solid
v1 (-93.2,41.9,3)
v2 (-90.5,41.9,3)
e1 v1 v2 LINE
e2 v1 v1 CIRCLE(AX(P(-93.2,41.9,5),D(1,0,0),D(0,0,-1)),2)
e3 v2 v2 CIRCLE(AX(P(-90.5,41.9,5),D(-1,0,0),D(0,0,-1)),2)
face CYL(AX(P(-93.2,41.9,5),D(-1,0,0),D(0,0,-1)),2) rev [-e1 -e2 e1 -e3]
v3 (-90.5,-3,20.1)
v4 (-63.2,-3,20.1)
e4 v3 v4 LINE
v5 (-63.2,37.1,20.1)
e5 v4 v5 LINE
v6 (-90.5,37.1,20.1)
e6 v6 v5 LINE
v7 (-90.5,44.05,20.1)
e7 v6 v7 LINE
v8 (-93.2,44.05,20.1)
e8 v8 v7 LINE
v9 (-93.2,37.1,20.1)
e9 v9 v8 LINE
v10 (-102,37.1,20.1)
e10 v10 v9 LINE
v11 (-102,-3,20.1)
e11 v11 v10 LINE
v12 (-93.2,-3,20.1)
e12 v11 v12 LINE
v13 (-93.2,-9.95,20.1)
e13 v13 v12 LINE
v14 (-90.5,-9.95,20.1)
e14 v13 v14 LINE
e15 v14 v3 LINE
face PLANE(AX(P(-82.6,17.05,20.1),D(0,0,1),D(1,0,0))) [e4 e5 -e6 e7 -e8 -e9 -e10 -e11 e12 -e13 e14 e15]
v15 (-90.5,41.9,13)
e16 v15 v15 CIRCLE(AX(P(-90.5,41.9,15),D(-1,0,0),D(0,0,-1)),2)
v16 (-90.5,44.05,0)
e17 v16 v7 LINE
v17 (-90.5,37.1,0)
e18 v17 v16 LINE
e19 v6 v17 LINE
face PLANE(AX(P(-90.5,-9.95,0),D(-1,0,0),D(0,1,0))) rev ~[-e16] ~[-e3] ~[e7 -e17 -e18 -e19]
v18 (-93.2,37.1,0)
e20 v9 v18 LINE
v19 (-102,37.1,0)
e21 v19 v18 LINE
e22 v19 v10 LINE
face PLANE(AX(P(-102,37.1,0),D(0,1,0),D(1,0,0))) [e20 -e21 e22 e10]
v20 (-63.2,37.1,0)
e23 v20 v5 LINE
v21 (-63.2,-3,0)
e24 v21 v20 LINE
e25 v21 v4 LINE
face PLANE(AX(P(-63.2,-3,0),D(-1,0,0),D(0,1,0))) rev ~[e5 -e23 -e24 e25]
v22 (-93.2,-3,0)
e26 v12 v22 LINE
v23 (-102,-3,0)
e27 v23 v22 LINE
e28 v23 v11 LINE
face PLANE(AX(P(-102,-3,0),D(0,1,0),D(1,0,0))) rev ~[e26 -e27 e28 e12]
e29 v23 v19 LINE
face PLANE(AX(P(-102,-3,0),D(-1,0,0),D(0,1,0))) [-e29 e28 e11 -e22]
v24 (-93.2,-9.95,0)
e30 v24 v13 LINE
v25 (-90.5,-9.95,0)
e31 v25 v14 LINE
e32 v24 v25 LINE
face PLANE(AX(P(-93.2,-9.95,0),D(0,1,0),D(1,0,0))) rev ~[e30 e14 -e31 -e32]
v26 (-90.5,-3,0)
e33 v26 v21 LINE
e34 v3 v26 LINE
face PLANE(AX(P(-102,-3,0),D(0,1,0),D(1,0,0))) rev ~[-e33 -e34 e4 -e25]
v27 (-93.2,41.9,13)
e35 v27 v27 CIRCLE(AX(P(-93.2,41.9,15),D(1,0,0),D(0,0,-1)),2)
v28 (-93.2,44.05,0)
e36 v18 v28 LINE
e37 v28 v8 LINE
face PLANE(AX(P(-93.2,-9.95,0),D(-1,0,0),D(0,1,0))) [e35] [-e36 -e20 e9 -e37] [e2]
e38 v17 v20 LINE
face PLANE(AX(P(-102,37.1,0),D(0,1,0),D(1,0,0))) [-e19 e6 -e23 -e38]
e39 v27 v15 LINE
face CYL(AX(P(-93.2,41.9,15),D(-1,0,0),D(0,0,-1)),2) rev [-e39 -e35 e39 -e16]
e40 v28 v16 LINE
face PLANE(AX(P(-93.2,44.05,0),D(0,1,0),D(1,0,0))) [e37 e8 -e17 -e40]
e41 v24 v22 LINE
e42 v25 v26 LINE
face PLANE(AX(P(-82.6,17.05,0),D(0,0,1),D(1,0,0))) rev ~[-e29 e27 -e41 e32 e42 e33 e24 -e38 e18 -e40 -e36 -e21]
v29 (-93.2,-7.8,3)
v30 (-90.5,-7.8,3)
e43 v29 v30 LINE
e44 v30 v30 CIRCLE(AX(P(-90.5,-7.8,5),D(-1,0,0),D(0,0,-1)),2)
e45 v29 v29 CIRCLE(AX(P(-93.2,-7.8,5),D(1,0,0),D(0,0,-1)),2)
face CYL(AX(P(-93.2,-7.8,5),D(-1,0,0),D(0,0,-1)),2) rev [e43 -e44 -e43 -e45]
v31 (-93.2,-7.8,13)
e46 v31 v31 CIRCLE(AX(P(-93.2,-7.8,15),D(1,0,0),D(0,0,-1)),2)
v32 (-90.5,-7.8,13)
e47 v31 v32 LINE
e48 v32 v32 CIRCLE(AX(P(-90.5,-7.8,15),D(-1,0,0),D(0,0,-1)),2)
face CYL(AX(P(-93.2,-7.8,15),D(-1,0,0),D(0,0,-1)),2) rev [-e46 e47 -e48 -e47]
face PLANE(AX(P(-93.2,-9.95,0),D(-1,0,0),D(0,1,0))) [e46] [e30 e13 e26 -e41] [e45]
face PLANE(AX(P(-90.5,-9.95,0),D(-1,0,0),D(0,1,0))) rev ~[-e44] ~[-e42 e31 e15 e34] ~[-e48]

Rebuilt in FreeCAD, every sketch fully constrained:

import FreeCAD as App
import Part
import Sketcher

V = App.Vector
Q = App.Units.Quantity


def add_polygon(sketch, points):
    """Adds a closed chain of lines whose ends are joined by coincident constraints."""
    first, n = sketch.GeometryCount, len(points)
    for a, b in zip(points, points[1:] + points[:1]):
        sketch.addGeometry(Part.LineSegment(App.Vector(*a, 0), App.Vector(*b, 0)), False)
    for i in range(n):
        sketch.addConstraint(Sketcher.Constraint("Coincident", first + i, 2, first + (i + 1) % n, 1))

doc = App.newDocument("Part")
params = doc.addObject("Spreadsheet::Sheet", "Params")
for row, (alias, value) in enumerate([
    ("sketch1_diameter", "4 mm"),
    ("pad1_length", "20 mm"),
    ("sketch2_diameter", "4 mm"),
    ("pad2_length", "20 mm"),
    ("sketch3_diameter", "4 mm"),
    ("pad3_length", "20 mm"),
    ("sketch4_diameter", "4 mm"),
    ("pad4_length", "20 mm"),
    ("sketch5_width", "38.8 mm"),
    ("sketch5_height", "40.1 mm"),
    ("pad5_length", "20.1 mm"),
    ("sketch6_height", "54 mm"),
    ("sketch6_width", "2.7 mm"),
    ("pad6_length", "20.1 mm"),
], start=1):
    params.set(f"A{row}", alias)
    params.set(f"B{row}", "=" + value)
    params.setAlias(f"B{row}", alias)

body = doc.addObject("PartDesign::Body", "Body")

# Sketch on YZ plane
sketch1 = body.newObject("Sketcher::SketchObject", "Sketch")
sketch1.AttachmentSupport = (doc.getObject("YZ_Plane"), [""])
sketch1.MapMode = "FlatFace"
sketch1.AttachmentOffset = App.Placement(V(0, 0, -97.2), App.Rotation())
sketch1.addGeometry(Part.Circle(V(2.2, 5, 0), V(0, 0, 1), 2), False)
sketch1.addConstraint([
    Sketcher.Constraint("Diameter", 0, Q("4 mm")),
    Sketcher.Constraint("DistanceY", -1, 1, 0, 3, Q("5 mm")),
    Sketcher.Constraint("DistanceX", -1, 1, 0, 3, Q("2.2 mm")),
])
sketch1.setExpression("Constraints[0]", "Params.sketch1_diameter")
pad1 = body.newObject("PartDesign::Pad", "Pad")
pad1.Profile = sketch1
pad1.setExpression("Length", "Params.pad1_length")
body2 = doc.addObject("PartDesign::Body", "Body001")

# Sketch on YZ plane
sketch2 = body2.newObject("Sketcher::SketchObject", "Sketch001")
sketch2.AttachmentSupport = (doc.getObject("YZ_Plane001"), [""])
sketch2.MapMode = "FlatFace"
sketch2.AttachmentOffset = App.Placement(V(0, 0, -97.2), App.Rotation())
sketch2.addGeometry(Part.Circle(V(2.2, 15, 0), V(0, 0, 1), 2), False)
sketch2.addConstraint([
    Sketcher.Constraint("Diameter", 0, Q("4 mm")),
    Sketcher.Constraint("DistanceY", -1, 1, 0, 3, Q("15 mm")),
    Sketcher.Constraint("DistanceX", -1, 1, 0, 3, Q("2.2 mm")),
])
sketch2.setExpression("Constraints[0]", "Params.sketch2_diameter")
pad2 = body2.newObject("PartDesign::Pad", "Pad001")
pad2.Profile = sketch2
pad2.setExpression("Length", "Params.pad2_length")
body3 = doc.addObject("PartDesign::Body", "Body002")

# Sketch on YZ plane
sketch3 = body3.newObject("Sketcher::SketchObject", "Sketch002")
sketch3.AttachmentSupport = (doc.getObject("YZ_Plane002"), [""])
sketch3.MapMode = "FlatFace"
sketch3.AttachmentOffset = App.Placement(V(0, 0, -97.2), App.Rotation())
sketch3.addGeometry(Part.Circle(V(51.9, 5, 0), V(0, 0, 1), 2), False)
sketch3.addConstraint([
    Sketcher.Constraint("Diameter", 0, Q("4 mm")),
    Sketcher.Constraint("DistanceY", -1, 1, 0, 3, Q("5 mm")),
    Sketcher.Constraint("DistanceX", -1, 1, 0, 3, Q("51.9 mm")),
])
sketch3.setExpression("Constraints[0]", "Params.sketch3_diameter")
pad3 = body3.newObject("PartDesign::Pad", "Pad002")
pad3.Profile = sketch3
pad3.setExpression("Length", "Params.pad3_length")
body4 = doc.addObject("PartDesign::Body", "Body003")

# Sketch on YZ plane
sketch4 = body4.newObject("Sketcher::SketchObject", "Sketch003")
sketch4.AttachmentSupport = (doc.getObject("YZ_Plane003"), [""])
sketch4.MapMode = "FlatFace"
sketch4.AttachmentOffset = App.Placement(V(0, 0, -97.2), App.Rotation())
sketch4.addGeometry(Part.Circle(V(51.9, 15, 0), V(0, 0, 1), 2), False)
sketch4.addConstraint([
    Sketcher.Constraint("Diameter", 0, Q("4 mm")),
    Sketcher.Constraint("DistanceY", -1, 1, 0, 3, Q("15 mm")),
    Sketcher.Constraint("DistanceX", -1, 1, 0, 3, Q("51.9 mm")),
])
sketch4.setExpression("Constraints[0]", "Params.sketch4_diameter")
pad4 = body4.newObject("PartDesign::Pad", "Pad003")
pad4.Profile = sketch4
pad4.setExpression("Length", "Params.pad4_length")
body5 = doc.addObject("PartDesign::Body", "Body004")

# Sketch on XY plane
sketch5 = body5.newObject("Sketcher::SketchObject", "Sketch004")
sketch5.AttachmentSupport = (doc.getObject("XY_Plane004"), [""])
sketch5.MapMode = "FlatFace"
add_polygon(sketch5, [(82, -53), (82, -93), (121, -93), (121, -53)])  # lines 0-3
sketch5.addConstraint([
    Sketcher.Constraint("Vertical", 0),
    Sketcher.Constraint("Horizontal", 1),
    Sketcher.Constraint("Vertical", 2),
    Sketcher.Constraint("Horizontal", 3),
    Sketcher.Constraint("DistanceX", 1, 1, 1, 2, Q("38.8 mm")),
    Sketcher.Constraint("DistanceY", 0, 2, 0, 1, Q("40.1 mm")),
    Sketcher.Constraint("DistanceX", -1, 1, 0, 2, Q("82 mm")),
    Sketcher.Constraint("DistanceY", 0, 2, -1, 1, Q("93 mm")),
])
sketch5.setExpression("Constraints[8]", "Params.sketch5_width")
sketch5.setExpression("Constraints[9]", "Params.sketch5_height")
pad5 = body5.newObject("PartDesign::Pad", "Pad004")
pad5.Profile = sketch5
pad5.setExpression("Length", "Params.pad5_length")
body6 = doc.addObject("PartDesign::Body", "Body005")

# Sketch on XY plane
sketch6 = body6.newObject("Sketcher::SketchObject", "Sketch005")
sketch6.AttachmentSupport = (doc.getObject("XY_Plane005"), [""])
sketch6.MapMode = "FlatFace"
add_polygon(sketch6, [(90.8, -46), (90.8, -100), (93.5, -100), (93.5, -46)])  # lines 0-3
sketch6.addConstraint([
    Sketcher.Constraint("Vertical", 0),
    Sketcher.Constraint("Horizontal", 1),
    Sketcher.Constraint("Vertical", 2),
    Sketcher.Constraint("Horizontal", 3),
    Sketcher.Constraint("DistanceY", 0, 2, 0, 1, Q("54 mm")),
    Sketcher.Constraint("DistanceX", 1, 1, 1, 2, Q("2.7 mm")),
    Sketcher.Constraint("DistanceX", -1, 1, 0, 2, Q("90.8 mm")),
    Sketcher.Constraint("DistanceY", 0, 2, -1, 1, Q("99.95 mm")),
])
sketch6.setExpression("Constraints[8]", "Params.sketch6_height")
sketch6.setExpression("Constraints[9]", "Params.sketch6_width")
pad6 = body6.newObject("PartDesign::Pad", "Pad005")
pad6.Profile = sketch6
pad6.setExpression("Length", "Params.pad6_length")
doc.recompute()

boolean = body6.newObject("PartDesign::Boolean", "Boolean")
boolean.Type = "Fuse"
boolean.addObjects([body5])
body7 = doc.addObject("PartDesign::Body", "Body006")
doc.recompute()

body6.Placement = App.Placement(V(-188, 100, 0), App.Rotation(V(0, 0, 1), 0))
boolean2 = body7.newObject("PartDesign::Boolean", "Boolean001")
boolean2.Type = "Fuse"
boolean2.addObjects([body6])
doc.recompute()

boolean3 = body7.newObject("PartDesign::Boolean", "Boolean002")
boolean3.Type = "Cut"
boolean3.addObjects([body4])
doc.recompute()

boolean4 = body7.newObject("PartDesign::Boolean", "Boolean003")
boolean4.Type = "Cut"
boolean4.addObjects([body3])
doc.recompute()

boolean5 = body7.newObject("PartDesign::Boolean", "Boolean004")
boolean5.Type = "Cut"
boolean5.addObjects([body2])
doc.recompute()

boolean6 = body7.newObject("PartDesign::Boolean", "Boolean005")
boolean6.Type = "Cut"
boolean6.addObjects([body])
body8 = doc.addObject("PartDesign::Body", "Body007")
doc.recompute()

body7.Placement = App.Placement(V(4, -10, 0), App.Rotation(V(0, 0, 1), 0))
boolean7 = body8.newObject("PartDesign::Boolean", "Boolean006")
boolean7.Type = "Fuse"
boolean7.addObjects([body7])

doc.recompute()
